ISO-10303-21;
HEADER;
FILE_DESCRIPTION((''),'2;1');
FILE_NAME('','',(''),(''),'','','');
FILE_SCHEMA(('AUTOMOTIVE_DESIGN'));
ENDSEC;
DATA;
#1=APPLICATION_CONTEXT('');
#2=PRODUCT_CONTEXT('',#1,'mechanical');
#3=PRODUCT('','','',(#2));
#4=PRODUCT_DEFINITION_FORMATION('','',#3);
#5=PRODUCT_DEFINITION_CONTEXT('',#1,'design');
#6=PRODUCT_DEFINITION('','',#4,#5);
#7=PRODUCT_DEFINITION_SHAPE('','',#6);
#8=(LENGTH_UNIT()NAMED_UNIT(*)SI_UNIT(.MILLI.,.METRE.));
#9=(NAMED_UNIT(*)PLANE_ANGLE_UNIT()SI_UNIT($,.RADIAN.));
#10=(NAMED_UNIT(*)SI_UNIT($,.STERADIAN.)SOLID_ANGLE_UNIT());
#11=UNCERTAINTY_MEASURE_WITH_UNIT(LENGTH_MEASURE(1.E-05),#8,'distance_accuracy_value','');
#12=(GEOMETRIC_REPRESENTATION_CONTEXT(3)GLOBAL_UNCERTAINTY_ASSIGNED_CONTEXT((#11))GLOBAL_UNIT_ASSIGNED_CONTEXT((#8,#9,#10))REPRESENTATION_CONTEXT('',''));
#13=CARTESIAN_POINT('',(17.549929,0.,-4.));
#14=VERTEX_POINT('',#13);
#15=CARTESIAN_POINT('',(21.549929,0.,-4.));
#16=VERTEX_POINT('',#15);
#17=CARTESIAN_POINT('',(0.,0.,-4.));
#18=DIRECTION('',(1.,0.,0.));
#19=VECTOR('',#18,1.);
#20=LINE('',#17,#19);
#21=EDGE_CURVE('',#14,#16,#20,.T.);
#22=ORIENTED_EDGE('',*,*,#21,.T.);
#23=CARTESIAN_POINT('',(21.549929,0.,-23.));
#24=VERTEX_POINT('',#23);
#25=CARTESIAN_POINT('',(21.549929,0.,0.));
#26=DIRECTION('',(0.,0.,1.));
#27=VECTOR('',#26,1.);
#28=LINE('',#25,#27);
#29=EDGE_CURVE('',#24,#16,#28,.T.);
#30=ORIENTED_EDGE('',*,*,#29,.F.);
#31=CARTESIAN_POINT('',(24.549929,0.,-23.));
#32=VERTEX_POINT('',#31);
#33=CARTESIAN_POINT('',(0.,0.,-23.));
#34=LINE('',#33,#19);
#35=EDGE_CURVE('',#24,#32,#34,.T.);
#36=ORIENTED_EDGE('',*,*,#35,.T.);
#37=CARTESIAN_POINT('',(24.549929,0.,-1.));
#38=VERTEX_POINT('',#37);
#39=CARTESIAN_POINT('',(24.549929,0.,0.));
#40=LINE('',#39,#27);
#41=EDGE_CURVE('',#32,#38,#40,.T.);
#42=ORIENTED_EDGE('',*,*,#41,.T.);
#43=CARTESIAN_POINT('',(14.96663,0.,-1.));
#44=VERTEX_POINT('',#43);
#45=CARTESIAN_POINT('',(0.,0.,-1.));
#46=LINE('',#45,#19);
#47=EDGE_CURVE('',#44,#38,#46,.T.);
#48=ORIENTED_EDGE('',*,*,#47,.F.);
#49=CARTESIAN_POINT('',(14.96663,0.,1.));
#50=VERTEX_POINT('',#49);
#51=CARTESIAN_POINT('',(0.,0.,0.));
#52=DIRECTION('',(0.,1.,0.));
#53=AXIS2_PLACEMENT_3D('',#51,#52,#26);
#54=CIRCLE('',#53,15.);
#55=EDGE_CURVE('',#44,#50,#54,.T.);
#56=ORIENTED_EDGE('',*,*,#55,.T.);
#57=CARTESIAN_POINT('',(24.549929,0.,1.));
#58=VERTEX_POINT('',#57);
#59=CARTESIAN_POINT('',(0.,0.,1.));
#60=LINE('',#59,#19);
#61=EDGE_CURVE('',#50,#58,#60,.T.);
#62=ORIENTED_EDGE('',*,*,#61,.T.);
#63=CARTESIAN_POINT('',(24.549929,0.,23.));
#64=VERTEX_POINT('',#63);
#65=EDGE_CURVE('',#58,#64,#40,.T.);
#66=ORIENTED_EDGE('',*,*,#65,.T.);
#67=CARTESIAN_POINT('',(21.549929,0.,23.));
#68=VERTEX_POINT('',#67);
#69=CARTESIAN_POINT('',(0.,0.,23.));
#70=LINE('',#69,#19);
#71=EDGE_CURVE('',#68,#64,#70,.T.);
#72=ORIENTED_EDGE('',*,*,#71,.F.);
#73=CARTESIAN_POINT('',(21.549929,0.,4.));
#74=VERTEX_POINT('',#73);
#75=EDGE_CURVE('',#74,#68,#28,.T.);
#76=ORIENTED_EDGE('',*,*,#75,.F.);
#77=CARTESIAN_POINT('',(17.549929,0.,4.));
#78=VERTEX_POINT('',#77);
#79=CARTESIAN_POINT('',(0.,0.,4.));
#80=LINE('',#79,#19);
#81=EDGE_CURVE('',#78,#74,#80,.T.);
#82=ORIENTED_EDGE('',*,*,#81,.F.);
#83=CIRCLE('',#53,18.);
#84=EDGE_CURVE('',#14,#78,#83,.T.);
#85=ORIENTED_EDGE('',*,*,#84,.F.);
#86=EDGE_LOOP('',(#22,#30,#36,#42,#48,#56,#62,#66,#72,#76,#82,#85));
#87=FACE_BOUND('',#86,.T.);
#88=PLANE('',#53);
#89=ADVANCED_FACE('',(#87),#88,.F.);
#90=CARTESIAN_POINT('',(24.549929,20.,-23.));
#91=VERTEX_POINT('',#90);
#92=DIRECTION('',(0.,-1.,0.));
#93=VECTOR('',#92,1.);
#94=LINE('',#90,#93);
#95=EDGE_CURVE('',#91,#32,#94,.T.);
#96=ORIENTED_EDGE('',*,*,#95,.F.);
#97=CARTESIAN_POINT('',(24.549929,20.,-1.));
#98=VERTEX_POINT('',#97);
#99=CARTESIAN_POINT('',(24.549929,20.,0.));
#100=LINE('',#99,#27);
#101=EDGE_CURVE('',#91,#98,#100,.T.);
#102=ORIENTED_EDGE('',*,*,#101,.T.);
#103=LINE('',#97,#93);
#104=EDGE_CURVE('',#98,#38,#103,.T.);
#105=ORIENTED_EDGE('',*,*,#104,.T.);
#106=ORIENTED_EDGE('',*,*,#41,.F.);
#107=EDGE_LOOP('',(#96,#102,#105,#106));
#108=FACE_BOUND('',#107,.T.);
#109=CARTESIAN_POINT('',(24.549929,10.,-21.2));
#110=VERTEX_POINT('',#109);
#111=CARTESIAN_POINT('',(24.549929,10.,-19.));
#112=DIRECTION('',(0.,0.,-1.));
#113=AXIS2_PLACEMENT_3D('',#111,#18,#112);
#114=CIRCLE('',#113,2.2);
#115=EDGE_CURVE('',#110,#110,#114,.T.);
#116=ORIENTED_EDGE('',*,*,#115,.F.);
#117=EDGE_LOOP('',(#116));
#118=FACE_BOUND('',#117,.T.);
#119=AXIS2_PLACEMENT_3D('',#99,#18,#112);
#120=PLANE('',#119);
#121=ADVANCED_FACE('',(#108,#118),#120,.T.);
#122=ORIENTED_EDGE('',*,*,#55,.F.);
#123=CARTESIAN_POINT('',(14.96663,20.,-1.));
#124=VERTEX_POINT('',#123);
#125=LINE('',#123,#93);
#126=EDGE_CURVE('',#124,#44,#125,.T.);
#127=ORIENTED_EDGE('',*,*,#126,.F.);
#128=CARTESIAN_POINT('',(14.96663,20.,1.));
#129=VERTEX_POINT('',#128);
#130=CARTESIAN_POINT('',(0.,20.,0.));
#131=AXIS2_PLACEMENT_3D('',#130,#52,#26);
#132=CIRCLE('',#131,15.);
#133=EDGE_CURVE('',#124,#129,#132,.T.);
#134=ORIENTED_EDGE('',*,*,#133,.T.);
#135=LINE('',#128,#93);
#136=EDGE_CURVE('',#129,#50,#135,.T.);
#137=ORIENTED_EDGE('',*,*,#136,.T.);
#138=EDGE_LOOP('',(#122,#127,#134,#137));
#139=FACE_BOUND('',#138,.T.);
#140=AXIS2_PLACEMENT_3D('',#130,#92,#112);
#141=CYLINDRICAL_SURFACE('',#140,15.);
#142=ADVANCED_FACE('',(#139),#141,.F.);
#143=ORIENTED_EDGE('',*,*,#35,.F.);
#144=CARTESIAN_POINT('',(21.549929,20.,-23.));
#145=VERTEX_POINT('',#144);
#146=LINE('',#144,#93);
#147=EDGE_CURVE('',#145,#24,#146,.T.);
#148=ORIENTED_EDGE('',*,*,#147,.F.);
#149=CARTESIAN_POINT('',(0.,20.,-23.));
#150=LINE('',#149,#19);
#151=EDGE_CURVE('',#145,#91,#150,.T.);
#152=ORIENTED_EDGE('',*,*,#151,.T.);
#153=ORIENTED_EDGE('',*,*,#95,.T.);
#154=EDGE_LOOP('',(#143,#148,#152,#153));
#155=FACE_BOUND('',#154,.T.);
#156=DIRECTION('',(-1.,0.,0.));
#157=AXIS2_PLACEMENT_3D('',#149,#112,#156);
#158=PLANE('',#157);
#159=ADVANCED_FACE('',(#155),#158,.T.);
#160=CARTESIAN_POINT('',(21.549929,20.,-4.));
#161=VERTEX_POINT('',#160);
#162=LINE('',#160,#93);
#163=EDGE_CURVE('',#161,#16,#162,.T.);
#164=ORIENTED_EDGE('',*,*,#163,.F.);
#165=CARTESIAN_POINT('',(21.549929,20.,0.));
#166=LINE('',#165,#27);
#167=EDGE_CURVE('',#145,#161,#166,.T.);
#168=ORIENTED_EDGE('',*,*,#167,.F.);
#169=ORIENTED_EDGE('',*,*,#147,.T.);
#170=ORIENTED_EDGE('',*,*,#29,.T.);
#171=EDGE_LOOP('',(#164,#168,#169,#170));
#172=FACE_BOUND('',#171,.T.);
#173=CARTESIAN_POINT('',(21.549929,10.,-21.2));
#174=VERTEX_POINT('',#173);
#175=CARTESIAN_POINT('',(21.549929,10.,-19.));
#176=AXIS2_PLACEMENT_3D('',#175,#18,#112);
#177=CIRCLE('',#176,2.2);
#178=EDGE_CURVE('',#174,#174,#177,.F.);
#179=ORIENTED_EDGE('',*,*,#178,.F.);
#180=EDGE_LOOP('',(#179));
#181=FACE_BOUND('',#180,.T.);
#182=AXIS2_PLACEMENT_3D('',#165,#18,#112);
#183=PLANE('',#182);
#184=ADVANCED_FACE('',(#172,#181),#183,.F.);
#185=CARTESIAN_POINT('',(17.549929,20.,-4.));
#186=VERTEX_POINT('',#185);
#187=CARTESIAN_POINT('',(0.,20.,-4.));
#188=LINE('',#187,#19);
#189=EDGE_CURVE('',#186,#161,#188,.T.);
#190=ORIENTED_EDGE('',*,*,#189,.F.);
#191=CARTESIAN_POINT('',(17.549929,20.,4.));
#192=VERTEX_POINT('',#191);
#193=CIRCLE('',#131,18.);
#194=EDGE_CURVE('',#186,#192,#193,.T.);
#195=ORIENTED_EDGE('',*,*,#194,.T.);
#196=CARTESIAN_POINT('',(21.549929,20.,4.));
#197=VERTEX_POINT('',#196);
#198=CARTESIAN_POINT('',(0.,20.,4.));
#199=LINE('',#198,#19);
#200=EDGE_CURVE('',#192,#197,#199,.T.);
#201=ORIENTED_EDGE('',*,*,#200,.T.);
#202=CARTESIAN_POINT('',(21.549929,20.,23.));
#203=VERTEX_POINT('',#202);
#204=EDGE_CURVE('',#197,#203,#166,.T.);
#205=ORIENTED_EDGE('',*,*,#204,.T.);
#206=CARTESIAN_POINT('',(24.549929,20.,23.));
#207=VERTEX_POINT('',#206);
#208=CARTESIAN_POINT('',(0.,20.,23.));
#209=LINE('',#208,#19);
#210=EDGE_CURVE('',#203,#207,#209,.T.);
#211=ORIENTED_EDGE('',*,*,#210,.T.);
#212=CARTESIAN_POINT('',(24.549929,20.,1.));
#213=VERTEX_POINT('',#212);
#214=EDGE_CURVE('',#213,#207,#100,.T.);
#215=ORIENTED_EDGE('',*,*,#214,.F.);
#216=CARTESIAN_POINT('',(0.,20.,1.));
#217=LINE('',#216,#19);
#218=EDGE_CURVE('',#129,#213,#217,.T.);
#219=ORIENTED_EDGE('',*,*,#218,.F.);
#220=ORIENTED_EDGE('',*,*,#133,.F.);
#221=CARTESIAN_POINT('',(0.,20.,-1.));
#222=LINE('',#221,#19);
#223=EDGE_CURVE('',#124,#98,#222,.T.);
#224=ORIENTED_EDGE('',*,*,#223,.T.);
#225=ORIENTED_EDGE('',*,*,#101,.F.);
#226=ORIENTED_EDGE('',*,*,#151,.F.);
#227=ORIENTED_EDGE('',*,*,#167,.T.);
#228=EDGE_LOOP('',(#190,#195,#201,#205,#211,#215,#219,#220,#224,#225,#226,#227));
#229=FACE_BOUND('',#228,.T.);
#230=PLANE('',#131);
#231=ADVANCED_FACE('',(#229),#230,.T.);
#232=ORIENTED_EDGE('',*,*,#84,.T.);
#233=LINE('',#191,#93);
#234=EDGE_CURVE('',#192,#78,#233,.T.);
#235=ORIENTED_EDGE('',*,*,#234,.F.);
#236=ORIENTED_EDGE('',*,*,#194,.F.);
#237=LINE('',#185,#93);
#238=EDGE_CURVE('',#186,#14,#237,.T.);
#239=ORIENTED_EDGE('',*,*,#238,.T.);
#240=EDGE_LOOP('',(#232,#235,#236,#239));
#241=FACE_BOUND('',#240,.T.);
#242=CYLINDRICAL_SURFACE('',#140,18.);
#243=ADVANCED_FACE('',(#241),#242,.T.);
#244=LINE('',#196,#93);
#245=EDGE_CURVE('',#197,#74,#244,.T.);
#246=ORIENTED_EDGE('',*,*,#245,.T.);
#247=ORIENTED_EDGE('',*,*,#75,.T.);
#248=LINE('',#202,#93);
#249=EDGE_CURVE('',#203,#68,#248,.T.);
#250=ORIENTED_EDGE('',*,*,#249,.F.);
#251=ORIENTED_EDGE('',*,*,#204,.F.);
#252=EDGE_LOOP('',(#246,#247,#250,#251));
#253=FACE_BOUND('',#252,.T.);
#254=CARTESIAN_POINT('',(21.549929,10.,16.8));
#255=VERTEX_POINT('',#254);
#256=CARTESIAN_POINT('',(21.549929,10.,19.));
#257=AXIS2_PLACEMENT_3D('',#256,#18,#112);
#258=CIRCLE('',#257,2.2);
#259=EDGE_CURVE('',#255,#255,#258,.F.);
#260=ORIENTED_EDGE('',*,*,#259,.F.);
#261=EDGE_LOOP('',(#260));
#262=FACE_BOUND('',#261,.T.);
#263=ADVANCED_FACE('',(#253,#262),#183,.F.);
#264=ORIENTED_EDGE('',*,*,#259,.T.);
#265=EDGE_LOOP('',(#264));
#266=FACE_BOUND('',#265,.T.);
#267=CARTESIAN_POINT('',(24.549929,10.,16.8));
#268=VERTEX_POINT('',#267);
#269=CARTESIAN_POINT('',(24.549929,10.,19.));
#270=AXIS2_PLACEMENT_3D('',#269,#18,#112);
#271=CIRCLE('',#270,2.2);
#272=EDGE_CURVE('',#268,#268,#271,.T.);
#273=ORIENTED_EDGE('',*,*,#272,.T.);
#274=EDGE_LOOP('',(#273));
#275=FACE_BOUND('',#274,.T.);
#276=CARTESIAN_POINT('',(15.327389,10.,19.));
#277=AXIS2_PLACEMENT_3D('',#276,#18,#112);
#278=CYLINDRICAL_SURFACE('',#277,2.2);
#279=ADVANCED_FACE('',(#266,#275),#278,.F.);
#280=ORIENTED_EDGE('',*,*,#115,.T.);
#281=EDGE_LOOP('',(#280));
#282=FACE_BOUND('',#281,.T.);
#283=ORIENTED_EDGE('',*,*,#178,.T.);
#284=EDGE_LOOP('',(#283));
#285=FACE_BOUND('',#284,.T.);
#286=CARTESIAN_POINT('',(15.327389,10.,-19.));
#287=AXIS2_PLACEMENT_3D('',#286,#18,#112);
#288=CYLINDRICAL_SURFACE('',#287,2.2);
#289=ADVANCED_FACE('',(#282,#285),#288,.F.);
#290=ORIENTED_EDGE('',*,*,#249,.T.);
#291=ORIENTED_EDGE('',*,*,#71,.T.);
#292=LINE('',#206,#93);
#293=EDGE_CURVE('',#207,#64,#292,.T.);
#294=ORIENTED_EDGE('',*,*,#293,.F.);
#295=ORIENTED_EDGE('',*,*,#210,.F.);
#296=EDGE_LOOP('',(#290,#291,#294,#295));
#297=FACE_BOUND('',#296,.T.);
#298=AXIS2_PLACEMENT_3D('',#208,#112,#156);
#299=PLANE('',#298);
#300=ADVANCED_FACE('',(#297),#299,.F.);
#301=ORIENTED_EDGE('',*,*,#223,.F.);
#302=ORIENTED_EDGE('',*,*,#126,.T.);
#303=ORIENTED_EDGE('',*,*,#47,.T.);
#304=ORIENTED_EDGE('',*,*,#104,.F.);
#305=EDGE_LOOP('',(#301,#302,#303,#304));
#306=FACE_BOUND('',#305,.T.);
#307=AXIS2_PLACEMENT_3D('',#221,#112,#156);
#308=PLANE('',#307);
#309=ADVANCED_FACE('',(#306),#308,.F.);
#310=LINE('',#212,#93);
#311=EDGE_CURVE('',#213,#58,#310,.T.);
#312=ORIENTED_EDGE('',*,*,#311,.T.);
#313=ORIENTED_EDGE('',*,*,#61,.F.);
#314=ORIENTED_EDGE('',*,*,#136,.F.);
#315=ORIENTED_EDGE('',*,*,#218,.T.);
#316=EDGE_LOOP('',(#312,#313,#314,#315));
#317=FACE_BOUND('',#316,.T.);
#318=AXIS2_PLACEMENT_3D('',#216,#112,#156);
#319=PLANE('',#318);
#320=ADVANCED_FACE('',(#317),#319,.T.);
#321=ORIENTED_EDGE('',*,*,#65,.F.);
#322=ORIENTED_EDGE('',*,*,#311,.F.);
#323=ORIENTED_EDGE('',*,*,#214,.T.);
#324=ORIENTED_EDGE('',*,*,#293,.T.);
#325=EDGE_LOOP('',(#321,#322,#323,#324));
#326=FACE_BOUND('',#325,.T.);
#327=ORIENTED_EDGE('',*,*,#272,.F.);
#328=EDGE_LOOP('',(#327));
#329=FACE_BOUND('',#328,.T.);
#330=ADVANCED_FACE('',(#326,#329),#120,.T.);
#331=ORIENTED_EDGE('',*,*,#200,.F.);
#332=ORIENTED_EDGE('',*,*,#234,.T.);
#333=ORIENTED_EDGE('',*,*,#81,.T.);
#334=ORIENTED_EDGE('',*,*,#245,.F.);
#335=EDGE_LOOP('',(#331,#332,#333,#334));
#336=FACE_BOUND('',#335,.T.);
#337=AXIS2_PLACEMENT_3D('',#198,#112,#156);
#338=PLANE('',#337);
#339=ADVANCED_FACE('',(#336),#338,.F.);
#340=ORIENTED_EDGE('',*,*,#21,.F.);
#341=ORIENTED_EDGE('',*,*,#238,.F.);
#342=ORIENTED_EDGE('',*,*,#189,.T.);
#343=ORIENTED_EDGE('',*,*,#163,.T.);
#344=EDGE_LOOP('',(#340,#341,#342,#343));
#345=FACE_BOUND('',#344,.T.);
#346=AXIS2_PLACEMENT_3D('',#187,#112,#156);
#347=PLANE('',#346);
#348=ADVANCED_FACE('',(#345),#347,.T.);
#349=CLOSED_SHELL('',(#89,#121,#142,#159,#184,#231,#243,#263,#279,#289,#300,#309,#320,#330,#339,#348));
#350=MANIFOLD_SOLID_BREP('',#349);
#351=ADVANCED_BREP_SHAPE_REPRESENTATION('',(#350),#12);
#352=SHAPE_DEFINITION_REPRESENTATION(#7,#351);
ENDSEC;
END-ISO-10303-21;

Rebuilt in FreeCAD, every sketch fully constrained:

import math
import FreeCAD as App
import Part
import Sketcher
from FreeCAD import Vector
Q = App.Units.Quantity

doc = App.newDocument("Part")
params = doc.addObject("Spreadsheet::Sheet", "Params")
for row, (alias, value) in enumerate([
    ("sketch1_radius", "15 mm"),
    ("sketch1_radius2", "18 mm"),
    ("sketch1_width", "3 mm"),
    ("sketch1_width2", "4 mm"),
    ("sketch1_height", "22 mm"),
    ("pad1_length", "20 mm"),
    ("sketch2_diameter", "4.4 mm"),
    ("pocket1_length", "3 mm"),
], start=1):
    params.set(f"A{row}", alias)
    params.set(f"B{row}", "=" + value)
    params.setAlias(f"B{row}", alias)

body = doc.addObject("PartDesign::Body", "Body")

# Sketch on XZ plane
sketch1 = body.newObject("Sketcher::SketchObject", "Sketch")
sketch1.AttachmentSupport = (doc.getObject("XZ_Plane"), [""])
sketch1.MapMode = "FlatFace"
sketch1.addGeometry(Part.LineSegment(Vector(24.5, 1, 0), Vector(15, 1, 0)), False)
sketch1.addGeometry(Part.ArcOfCircle(Part.Circle(Vector(0, 0, 0), Vector(0, 0, 1), 15), math.radians(4), math.radians(356)), False)
sketch1.addGeometry(Part.LineSegment(Vector(15, -1, 0), Vector(24.5, -1, 0)), False)
sketch1.addGeometry(Part.LineSegment(Vector(24.5, -1, 0), Vector(24.5, -23, 0)), False)
sketch1.addGeometry(Part.LineSegment(Vector(24.5, -23, 0), Vector(21.5, -23, 0)), False)
sketch1.addGeometry(Part.LineSegment(Vector(21.5, -23, 0), Vector(21.5, -4, 0)), False)
sketch1.addGeometry(Part.LineSegment(Vector(21.5, -4, 0), Vector(17.5, -4, 0)), False)
sketch1.addGeometry(Part.ArcOfCircle(Part.Circle(Vector(0, 0, 0), Vector(0, 0, 1), 18), math.radians(13), math.radians(347)), False)
sketch1.addGeometry(Part.LineSegment(Vector(17.5, 4, 0), Vector(21.5, 4, 0)), False)
sketch1.addGeometry(Part.LineSegment(Vector(21.5, 4, 0), Vector(21.5, 23, 0)), False)
sketch1.addGeometry(Part.LineSegment(Vector(21.5, 23, 0), Vector(24.5, 23, 0)), False)
sketch1.addGeometry(Part.LineSegment(Vector(24.5, 23, 0), Vector(24.5, 1, 0)), False)
sketch1.addConstraint(Sketcher.Constraint("Coincident", 0, 2, 1, 1))
sketch1.addConstraint(Sketcher.Constraint("Coincident", 1, 2, 2, 1))
sketch1.addConstraint(Sketcher.Constraint("Coincident", 2, 2, 3, 1))
sketch1.addConstraint(Sketcher.Constraint("Coincident", 3, 2, 4, 1))
sketch1.addConstraint(Sketcher.Constraint("Coincident", 4, 2, 5, 1))
sketch1.addConstraint(Sketcher.Constraint("Coincident", 5, 2, 6, 1))
sketch1.addConstraint(Sketcher.Constraint("Coincident", 6, 2, 7, 2))
sketch1.addConstraint(Sketcher.Constraint("Coincident", 7, 1, 8, 1))
sketch1.addConstraint(Sketcher.Constraint("Coincident", 8, 2, 9, 1))
sketch1.addConstraint(Sketcher.Constraint("Coincident", 9, 2, 10, 1))
sketch1.addConstraint(Sketcher.Constraint("Coincident", 10, 2, 11, 1))
sketch1.addConstraint(Sketcher.Constraint("Coincident", 11, 2, 0, 1))
sketch1.addConstraint(Sketcher.Constraint("Horizontal", 0))
sketch1.addConstraint(Sketcher.Constraint("Horizontal", 2))
sketch1.addConstraint(Sketcher.Constraint("Vertical", 3))
sketch1.addConstraint(Sketcher.Constraint("Horizontal", 4))
sketch1.addConstraint(Sketcher.Constraint("Vertical", 5))
sketch1.addConstraint(Sketcher.Constraint("Horizontal", 6))
sketch1.addConstraint(Sketcher.Constraint("Horizontal", 8))
sketch1.addConstraint(Sketcher.Constraint("Vertical", 9))
sketch1.addConstraint(Sketcher.Constraint("Horizontal", 10))
sketch1.addConstraint(Sketcher.Constraint("Vertical", 11))
sketch1.addConstraint(Sketcher.Constraint("Coincident", 1, 3, -1, 1))
sketch1.addConstraint(Sketcher.Constraint("Coincident", 7, 3, -1, 1))
sketch1.addConstraint(Sketcher.Constraint("Symmetric", 5, 2, 8, 2, -1))
sketch1.addConstraint(Sketcher.Constraint("Symmetric", 3, 2, 10, 2, -1))
sketch1.addConstraint(Sketcher.Constraint("Vertical", 0, 2, 1, 2))
sketch1.addConstraint(Sketcher.Constraint("Radius", 1, Q("15 mm")))
sketch1.addConstraint(Sketcher.Constraint("Radius", 7, Q("18 mm")))
sketch1.addConstraint(Sketcher.Constraint("DistanceX", 4, 2, 4, 1, Q("3 mm")))
sketch1.addConstraint(Sketcher.Constraint("DistanceX", 6, 2, 6, 1, Q("4 mm")))
sketch1.addConstraint(Sketcher.Constraint("DistanceY", 3, 2, 3, 1, Q("22 mm")))
sketch1.addConstraint(Sketcher.Constraint("DistanceY", 5, 1, 5, 2, Q("19 mm")))
sketch1.addConstraint(Sketcher.Constraint("DistanceY", -1, 1, 0, 2, Q("1 mm")))
sketch1.setExpression("Constraints[27]", "Params.sketch1_radius")
sketch1.setExpression("Constraints[28]", "Params.sketch1_radius2")
sketch1.setExpression("Constraints[29]", "Params.sketch1_width")
sketch1.setExpression("Constraints[30]", "Params.sketch1_width2")
sketch1.setExpression("Constraints[31]", "Params.sketch1_height")
pad1 = body.newObject("PartDesign::Pad", "Pad")
pad1.Profile = sketch1
pad1.setExpression("Length", "Params.pad1_length")
pad1.Reversed = True

# Sketch on YZ plane
sketch2 = body.newObject("Sketcher::SketchObject", "Sketch001")
sketch2.AttachmentSupport = (doc.getObject("YZ_Plane"), [""])
sketch2.MapMode = "FlatFace"
sketch2.AttachmentOffset = App.Placement(Vector(0, 0, 24.549929), App.Rotation())
sketch2.addGeometry(Part.Circle(Vector(10, -19, 0), Vector(0, 0, 1), 2.2), False)
sketch2.addGeometry(Part.Circle(Vector(10, 19, 0), Vector(0, 0, 1), 2.2), False)
sketch2.addConstraint(Sketcher.Constraint("Equal", 0, 1))
sketch2.addConstraint(Sketcher.Constraint("Symmetric", 0, 3, 1, 3, -1))
sketch2.addConstraint(Sketcher.Constraint("Diameter", 0, Q("4.4 mm")))
sketch2.addConstraint(Sketcher.Constraint("DistanceX", -1, 1, 0, 3, Q("10 mm")))
sketch2.addConstraint(Sketcher.Constraint("DistanceY", 0, 3, -1, 1, Q("19 mm")))
sketch2.setExpression("Constraints[2]", "Params.sketch2_diameter")
pocket1 = body.newObject("PartDesign::Pocket", "Pocket")
pocket1.Profile = sketch2
pocket1.setExpression("Length", "Params.pocket1_length")

doc.recompute()
